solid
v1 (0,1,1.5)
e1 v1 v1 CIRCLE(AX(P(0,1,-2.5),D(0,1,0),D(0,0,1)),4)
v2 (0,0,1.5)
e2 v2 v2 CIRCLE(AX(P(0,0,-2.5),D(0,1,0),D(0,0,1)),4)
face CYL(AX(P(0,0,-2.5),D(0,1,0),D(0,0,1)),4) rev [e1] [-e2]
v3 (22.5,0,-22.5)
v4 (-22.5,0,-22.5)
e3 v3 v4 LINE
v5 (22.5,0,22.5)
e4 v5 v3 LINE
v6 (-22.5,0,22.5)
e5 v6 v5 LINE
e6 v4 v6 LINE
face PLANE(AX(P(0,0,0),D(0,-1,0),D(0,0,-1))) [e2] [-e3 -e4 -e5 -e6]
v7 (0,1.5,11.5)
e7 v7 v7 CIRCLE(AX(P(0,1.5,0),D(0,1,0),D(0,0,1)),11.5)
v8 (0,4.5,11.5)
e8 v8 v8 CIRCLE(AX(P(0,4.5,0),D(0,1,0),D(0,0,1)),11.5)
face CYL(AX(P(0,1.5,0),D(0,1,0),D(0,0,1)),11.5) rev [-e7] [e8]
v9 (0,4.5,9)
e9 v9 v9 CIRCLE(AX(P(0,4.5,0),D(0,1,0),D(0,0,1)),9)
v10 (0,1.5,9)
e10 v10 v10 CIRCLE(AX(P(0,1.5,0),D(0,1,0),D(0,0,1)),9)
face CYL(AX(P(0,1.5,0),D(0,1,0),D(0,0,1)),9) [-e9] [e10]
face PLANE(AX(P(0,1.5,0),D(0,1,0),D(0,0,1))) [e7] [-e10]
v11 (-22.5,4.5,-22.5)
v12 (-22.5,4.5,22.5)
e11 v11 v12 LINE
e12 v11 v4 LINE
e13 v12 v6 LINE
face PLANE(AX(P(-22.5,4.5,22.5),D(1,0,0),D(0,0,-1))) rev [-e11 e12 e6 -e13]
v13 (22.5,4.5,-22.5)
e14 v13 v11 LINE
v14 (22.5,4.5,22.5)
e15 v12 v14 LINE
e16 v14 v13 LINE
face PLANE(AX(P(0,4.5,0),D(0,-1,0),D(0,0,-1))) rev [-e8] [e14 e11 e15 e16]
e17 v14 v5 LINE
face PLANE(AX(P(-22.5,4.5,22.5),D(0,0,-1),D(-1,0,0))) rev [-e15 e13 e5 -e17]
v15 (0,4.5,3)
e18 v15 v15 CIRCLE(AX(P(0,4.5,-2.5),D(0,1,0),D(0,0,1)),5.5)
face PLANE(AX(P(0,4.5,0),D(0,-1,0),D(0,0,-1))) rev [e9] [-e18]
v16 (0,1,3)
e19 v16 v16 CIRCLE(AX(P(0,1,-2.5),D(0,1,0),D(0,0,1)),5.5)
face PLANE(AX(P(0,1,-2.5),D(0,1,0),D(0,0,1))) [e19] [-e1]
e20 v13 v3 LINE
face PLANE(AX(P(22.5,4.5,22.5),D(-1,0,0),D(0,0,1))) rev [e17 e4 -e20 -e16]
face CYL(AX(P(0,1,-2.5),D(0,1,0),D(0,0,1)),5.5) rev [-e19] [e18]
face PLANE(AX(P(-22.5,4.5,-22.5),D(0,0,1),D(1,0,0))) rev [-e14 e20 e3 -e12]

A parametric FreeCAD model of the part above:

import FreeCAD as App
import Part
import Sketcher

V = App.Vector
Q = App.Units.Quantity

doc = App.newDocument("Part")
body = doc.addObject("PartDesign::Body", "Body")

sketch1 = doc.addObject("Sketcher::SketchObject", "Sketch")
body.addObject(sketch1)
sketch1.AttachmentSupport = (doc.XZ_Plane, [""])
sketch1.MapMode = "FlatFace"
sketch1.addGeometry([
    Part.LineSegment(V(-22, -22, 0), V(-22, 22, 0)),
    Part.LineSegment(V(-22, 22, 0), V(22, 22, 0)),
    Part.LineSegment(V(22, 22, 0), V(22, -22, 0)),
    Part.LineSegment(V(22, -22, 0), V(-22, -22, 0)),
], False)
sketch1.addConstraint([
    Sketcher.Constraint("Coincident", 0, 2, 1, 1),
    Sketcher.Constraint("Coincident", 1, 2, 2, 1),
    Sketcher.Constraint("Coincident", 2, 2, 3, 1),
    Sketcher.Constraint("Coincident", 3, 2, 0, 1),
    Sketcher.Constraint("Vertical", 0),
    Sketcher.Constraint("Horizontal", 1),
    Sketcher.Constraint("Vertical", 2),
    Sketcher.Constraint("Horizontal", 3),
    Sketcher.Constraint("Symmetric", 0, 2, 2, 2, -1, 1),
    Sketcher.Constraint("Equal", 3, 0),
    Sketcher.Constraint("DistanceX", 1, 1, 1, 2, Q("45 mm")),
])
pad1 = doc.addObject("PartDesign::Pad", "Pad")
body.addObject(pad1)
pad1.Profile = sketch1
pad1.Length = 4.5
pad1.Reversed = True

sketch2 = doc.addObject("Sketcher::SketchObject", "Sketch001")
body.addObject(sketch2)
sketch2.AttachmentSupport = (doc.XZ_Plane, [""])
sketch2.MapMode = "FlatFace"
sketch2.AttachmentOffset = App.Placement(V(0, 0, -4.5), App.Rotation())
sketch2.addGeometry(Part.Circle(V(0, -2, 0), V(0, 0, 1), 6), False)
sketch2.addConstraint([
    Sketcher.Constraint("PointOnObject", 0, 3, -2),
    Sketcher.Constraint("Diameter", 0, Q("11 mm")),
    Sketcher.Constraint("DistanceY", 0, 3, -1, 1, Q("2.5 mm")),
])
pocket1 = doc.addObject("PartDesign::Pocket", "Pocket")
body.addObject(pocket1)
pocket1.Profile = sketch2
pocket1.Length = 3.5
pocket1.Reversed = True

sketch3 = doc.addObject("Sketcher::SketchObject", "Sketch002")
body.addObject(sketch3)
sketch3.AttachmentSupport = (doc.XZ_Plane, [""])
sketch3.MapMode = "FlatFace"
sketch3.AttachmentOffset = App.Placement(V(0, 0, -1), App.Rotation())
sketch3.addGeometry(Part.Circle(V(0, -2.5, 0), V(0, 0, 1), 4), False)
sketch3.addConstraint([
    Sketcher.Constraint("PointOnObject", 0, 3, -2),
    Sketcher.Constraint("Diameter", 0, Q("8 mm")),
    Sketcher.Constraint("DistanceY", 0, 3, -1, 1, Q("2.5 mm")),
])
pocket2 = doc.addObject("PartDesign::Pocket", "Pocket001")
body.addObject(pocket2)
pocket2.Profile = sketch3
pocket2.Type = "ThroughAll"
pocket2.Reversed = True

sketch4 = doc.addObject("Sketcher::SketchObject", "Sketch003")
body.addObject(sketch4)
sketch4.AttachmentSupport = (doc.XZ_Plane, [""])
sketch4.MapMode = "FlatFace"
sketch4.AttachmentOffset = App.Placement(V(0, 0, -4.5), App.Rotation())
sketch4.addGeometry([
    Part.Circle(V(0, 0, 0), V(0, 0, 1), 12),
    Part.Circle(V(0, 0, 0), V(0, 0, 1), 9),
], False)
sketch4.addConstraint([
    Sketcher.Constraint("Coincident", 0, 3, -1, 1),
    Sketcher.Constraint("Coincident", 1, 3, -1, 1),
    Sketcher.Constraint("Diameter", 0, Q("23 mm")),
    Sketcher.Constraint("Diameter", 1, Q("18 mm")),
])
pocket3 = doc.addObject("PartDesign::Pocket", "Pocket002")
body.addObject(pocket3)
pocket3.Profile = sketch4
pocket3.Length = 3
pocket3.Reversed = True

doc.recompute()
